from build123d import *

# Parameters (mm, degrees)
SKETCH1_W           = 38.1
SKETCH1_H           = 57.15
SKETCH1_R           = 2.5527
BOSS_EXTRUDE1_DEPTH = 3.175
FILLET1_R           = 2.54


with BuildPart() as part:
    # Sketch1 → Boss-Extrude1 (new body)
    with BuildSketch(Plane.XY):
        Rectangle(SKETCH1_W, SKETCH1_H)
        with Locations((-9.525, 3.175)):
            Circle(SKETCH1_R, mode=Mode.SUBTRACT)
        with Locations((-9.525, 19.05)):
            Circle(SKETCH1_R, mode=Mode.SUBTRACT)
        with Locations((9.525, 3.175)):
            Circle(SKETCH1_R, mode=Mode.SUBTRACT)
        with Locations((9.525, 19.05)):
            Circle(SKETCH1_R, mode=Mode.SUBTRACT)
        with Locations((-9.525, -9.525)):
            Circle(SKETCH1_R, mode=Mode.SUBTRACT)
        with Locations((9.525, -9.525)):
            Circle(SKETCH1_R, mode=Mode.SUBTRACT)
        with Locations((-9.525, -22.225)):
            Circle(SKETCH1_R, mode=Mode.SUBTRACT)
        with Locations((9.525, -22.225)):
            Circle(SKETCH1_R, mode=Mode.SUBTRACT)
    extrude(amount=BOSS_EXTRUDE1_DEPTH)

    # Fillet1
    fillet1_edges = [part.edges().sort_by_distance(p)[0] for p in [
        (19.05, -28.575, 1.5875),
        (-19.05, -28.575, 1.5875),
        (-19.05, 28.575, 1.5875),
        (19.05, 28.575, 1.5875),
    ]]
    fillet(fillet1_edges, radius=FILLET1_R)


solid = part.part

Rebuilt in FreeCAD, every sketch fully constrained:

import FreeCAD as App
import Part
import Sketcher
from FreeCAD import Vector
Q = App.Units.Quantity


def edges_at(feature, points):
    """Names of the edges that pass closest to the given points."""
    edges = feature.Shape.Edges
    near = lambda p: min(range(len(edges)), key=lambda i: edges[i].distToShape(Part.Vertex(*p))[0])
    return sorted({f"Edge{near(p) + 1}" for p in points})


def add_polygon(sketch, points):
    """Adds a closed chain of lines whose ends are joined by coincident constraints."""
    first, n = sketch.GeometryCount, len(points)
    for a, b in zip(points, points[1:] + points[:1]):
        sketch.addGeometry(Part.LineSegment(App.Vector(*a, 0), App.Vector(*b, 0)), False)
    for i in range(n):
        sketch.addConstraint(Sketcher.Constraint("Coincident", first + i, 2, first + (i + 1) % n, 1))

doc = App.newDocument("Part")
body = doc.addObject("PartDesign::Body", "Body")

# Sketch on XY plane
sketch1 = doc.addObject("Sketcher::SketchObject", "Sketch")
body.addObject(sketch1)
sketch1.AttachmentSupport = (doc.XY_Plane, [""])
sketch1.MapMode = "FlatFace"
add_polygon(sketch1, [(-19.05, 28.575), (-19.05, -28.575), (19.05, -28.575), (19.05, 28.575)])  # lines 0-3
sketch1.addGeometry(Part.Circle(Vector(-9.525, -22.225, 0), Vector(0, 0, 1), 2.5527), False)  # 4
sketch1.addGeometry(Part.Circle(Vector(-9.525, -9.525, 0), Vector(0, 0, 1), 2.5527), False)  # 5
sketch1.addGeometry(Part.Circle(Vector(9.525, -22.225, 0), Vector(0, 0, 1), 2.5527), False)  # 6
sketch1.addGeometry(Part.Circle(Vector(9.525, -9.525, 0), Vector(0, 0, 1), 2.5527), False)  # 7
sketch1.addGeometry(Part.Circle(Vector(-9.525, 3.175, 0), Vector(0, 0, 1), 2.5527), False)  # 8
sketch1.addGeometry(Part.Circle(Vector(-9.525, 19.05, 0), Vector(0, 0, 1), 2.5527), False)  # 9
sketch1.addGeometry(Part.Circle(Vector(9.525, 3.175, 0), Vector(0, 0, 1), 2.5527), False)  # 10
sketch1.addGeometry(Part.Circle(Vector(9.525, 19.05, 0), Vector(0, 0, 1), 2.5527), False)  # 11
sketch1.addConstraint(Sketcher.Constraint("Vertical", 0))
sketch1.addConstraint(Sketcher.Constraint("Horizontal", 1))
sketch1.addConstraint(Sketcher.Constraint("Vertical", 2))
sketch1.addConstraint(Sketcher.Constraint("Horizontal", 3))
sketch1.addConstraint(Sketcher.Constraint("Equal", 4, 5))
sketch1.addConstraint(Sketcher.Constraint("Equal", 5, 6))
sketch1.addConstraint(Sketcher.Constraint("Equal", 6, 7))
sketch1.addConstraint(Sketcher.Constraint("Equal", 7, 8))
sketch1.addConstraint(Sketcher.Constraint("Equal", 8, 9))
sketch1.addConstraint(Sketcher.Constraint("Equal", 9, 10))
sketch1.addConstraint(Sketcher.Constraint("Equal", 10, 11))
sketch1.addConstraint(Sketcher.Constraint("Symmetric", 0, 2, 2, 2, -1, 1))
sketch1.addConstraint(Sketcher.Constraint("Symmetric", 4, 3, 6, 3, -2))
sketch1.addConstraint(Sketcher.Constraint("Symmetric", 5, 3, 7, 3, -2))
sketch1.addConstraint(Sketcher.Constraint("Symmetric", 8, 3, 10, 3, -2))
sketch1.addConstraint(Sketcher.Constraint("Symmetric", 9, 3, 11, 3, -2))
sketch1.addConstraint(Sketcher.Constraint("Vertical", 4, 3, 5, 3))
sketch1.addConstraint(Sketcher.Constraint("Vertical", 5, 3, 8, 3))
sketch1.addConstraint(Sketcher.Constraint("Vertical", 8, 3, 9, 3))
sketch1.addConstraint(Sketcher.Constraint("Diameter", 4, Q("0.201 in")))
sketch1.addConstraint(Sketcher.Constraint("DistanceX", 1, 1, 1, 2, Q("1.5 in")))
sketch1.addConstraint(Sketcher.Constraint("DistanceY", 4, 3, 8, 3, Q("1 in")))
sketch1.addConstraint(Sketcher.Constraint("DistanceY", 10, 3, 2, 2, Q("1 in")))
sketch1.addConstraint(Sketcher.Constraint("DistanceY", 0, 2, 0, 1, Q("2.25 in")))
sketch1.addConstraint(Sketcher.Constraint("DistanceY", 4, 3, 5, 3, Q("0.5 in")))
sketch1.addConstraint(Sketcher.Constraint("DistanceY", -1, 1, 9, 3, Q("0.75 in")))
sketch1.addConstraint(Sketcher.Constraint("DistanceX", 4, 3, 6, 3, Q("0.75 in")))
pad1 = doc.addObject("PartDesign::Pad", "Pad")
body.addObject(pad1)
pad1.Profile = sketch1
pad1.Length = Q("0.125 in")
doc.recompute()

fillet = doc.addObject("PartDesign::Fillet", "Fillet")
body.addObject(fillet)
fillet.Base = (pad1, edges_at(pad1, [
    (19.05, -28.575, 1.587),
    (-19.05, -28.575, 1.587),
    (-19.05, 28.575, 1.587),
    (19.05, 28.575, 1.587),
]))
fillet.Radius = Q("0.1 in")

doc.recompute()
